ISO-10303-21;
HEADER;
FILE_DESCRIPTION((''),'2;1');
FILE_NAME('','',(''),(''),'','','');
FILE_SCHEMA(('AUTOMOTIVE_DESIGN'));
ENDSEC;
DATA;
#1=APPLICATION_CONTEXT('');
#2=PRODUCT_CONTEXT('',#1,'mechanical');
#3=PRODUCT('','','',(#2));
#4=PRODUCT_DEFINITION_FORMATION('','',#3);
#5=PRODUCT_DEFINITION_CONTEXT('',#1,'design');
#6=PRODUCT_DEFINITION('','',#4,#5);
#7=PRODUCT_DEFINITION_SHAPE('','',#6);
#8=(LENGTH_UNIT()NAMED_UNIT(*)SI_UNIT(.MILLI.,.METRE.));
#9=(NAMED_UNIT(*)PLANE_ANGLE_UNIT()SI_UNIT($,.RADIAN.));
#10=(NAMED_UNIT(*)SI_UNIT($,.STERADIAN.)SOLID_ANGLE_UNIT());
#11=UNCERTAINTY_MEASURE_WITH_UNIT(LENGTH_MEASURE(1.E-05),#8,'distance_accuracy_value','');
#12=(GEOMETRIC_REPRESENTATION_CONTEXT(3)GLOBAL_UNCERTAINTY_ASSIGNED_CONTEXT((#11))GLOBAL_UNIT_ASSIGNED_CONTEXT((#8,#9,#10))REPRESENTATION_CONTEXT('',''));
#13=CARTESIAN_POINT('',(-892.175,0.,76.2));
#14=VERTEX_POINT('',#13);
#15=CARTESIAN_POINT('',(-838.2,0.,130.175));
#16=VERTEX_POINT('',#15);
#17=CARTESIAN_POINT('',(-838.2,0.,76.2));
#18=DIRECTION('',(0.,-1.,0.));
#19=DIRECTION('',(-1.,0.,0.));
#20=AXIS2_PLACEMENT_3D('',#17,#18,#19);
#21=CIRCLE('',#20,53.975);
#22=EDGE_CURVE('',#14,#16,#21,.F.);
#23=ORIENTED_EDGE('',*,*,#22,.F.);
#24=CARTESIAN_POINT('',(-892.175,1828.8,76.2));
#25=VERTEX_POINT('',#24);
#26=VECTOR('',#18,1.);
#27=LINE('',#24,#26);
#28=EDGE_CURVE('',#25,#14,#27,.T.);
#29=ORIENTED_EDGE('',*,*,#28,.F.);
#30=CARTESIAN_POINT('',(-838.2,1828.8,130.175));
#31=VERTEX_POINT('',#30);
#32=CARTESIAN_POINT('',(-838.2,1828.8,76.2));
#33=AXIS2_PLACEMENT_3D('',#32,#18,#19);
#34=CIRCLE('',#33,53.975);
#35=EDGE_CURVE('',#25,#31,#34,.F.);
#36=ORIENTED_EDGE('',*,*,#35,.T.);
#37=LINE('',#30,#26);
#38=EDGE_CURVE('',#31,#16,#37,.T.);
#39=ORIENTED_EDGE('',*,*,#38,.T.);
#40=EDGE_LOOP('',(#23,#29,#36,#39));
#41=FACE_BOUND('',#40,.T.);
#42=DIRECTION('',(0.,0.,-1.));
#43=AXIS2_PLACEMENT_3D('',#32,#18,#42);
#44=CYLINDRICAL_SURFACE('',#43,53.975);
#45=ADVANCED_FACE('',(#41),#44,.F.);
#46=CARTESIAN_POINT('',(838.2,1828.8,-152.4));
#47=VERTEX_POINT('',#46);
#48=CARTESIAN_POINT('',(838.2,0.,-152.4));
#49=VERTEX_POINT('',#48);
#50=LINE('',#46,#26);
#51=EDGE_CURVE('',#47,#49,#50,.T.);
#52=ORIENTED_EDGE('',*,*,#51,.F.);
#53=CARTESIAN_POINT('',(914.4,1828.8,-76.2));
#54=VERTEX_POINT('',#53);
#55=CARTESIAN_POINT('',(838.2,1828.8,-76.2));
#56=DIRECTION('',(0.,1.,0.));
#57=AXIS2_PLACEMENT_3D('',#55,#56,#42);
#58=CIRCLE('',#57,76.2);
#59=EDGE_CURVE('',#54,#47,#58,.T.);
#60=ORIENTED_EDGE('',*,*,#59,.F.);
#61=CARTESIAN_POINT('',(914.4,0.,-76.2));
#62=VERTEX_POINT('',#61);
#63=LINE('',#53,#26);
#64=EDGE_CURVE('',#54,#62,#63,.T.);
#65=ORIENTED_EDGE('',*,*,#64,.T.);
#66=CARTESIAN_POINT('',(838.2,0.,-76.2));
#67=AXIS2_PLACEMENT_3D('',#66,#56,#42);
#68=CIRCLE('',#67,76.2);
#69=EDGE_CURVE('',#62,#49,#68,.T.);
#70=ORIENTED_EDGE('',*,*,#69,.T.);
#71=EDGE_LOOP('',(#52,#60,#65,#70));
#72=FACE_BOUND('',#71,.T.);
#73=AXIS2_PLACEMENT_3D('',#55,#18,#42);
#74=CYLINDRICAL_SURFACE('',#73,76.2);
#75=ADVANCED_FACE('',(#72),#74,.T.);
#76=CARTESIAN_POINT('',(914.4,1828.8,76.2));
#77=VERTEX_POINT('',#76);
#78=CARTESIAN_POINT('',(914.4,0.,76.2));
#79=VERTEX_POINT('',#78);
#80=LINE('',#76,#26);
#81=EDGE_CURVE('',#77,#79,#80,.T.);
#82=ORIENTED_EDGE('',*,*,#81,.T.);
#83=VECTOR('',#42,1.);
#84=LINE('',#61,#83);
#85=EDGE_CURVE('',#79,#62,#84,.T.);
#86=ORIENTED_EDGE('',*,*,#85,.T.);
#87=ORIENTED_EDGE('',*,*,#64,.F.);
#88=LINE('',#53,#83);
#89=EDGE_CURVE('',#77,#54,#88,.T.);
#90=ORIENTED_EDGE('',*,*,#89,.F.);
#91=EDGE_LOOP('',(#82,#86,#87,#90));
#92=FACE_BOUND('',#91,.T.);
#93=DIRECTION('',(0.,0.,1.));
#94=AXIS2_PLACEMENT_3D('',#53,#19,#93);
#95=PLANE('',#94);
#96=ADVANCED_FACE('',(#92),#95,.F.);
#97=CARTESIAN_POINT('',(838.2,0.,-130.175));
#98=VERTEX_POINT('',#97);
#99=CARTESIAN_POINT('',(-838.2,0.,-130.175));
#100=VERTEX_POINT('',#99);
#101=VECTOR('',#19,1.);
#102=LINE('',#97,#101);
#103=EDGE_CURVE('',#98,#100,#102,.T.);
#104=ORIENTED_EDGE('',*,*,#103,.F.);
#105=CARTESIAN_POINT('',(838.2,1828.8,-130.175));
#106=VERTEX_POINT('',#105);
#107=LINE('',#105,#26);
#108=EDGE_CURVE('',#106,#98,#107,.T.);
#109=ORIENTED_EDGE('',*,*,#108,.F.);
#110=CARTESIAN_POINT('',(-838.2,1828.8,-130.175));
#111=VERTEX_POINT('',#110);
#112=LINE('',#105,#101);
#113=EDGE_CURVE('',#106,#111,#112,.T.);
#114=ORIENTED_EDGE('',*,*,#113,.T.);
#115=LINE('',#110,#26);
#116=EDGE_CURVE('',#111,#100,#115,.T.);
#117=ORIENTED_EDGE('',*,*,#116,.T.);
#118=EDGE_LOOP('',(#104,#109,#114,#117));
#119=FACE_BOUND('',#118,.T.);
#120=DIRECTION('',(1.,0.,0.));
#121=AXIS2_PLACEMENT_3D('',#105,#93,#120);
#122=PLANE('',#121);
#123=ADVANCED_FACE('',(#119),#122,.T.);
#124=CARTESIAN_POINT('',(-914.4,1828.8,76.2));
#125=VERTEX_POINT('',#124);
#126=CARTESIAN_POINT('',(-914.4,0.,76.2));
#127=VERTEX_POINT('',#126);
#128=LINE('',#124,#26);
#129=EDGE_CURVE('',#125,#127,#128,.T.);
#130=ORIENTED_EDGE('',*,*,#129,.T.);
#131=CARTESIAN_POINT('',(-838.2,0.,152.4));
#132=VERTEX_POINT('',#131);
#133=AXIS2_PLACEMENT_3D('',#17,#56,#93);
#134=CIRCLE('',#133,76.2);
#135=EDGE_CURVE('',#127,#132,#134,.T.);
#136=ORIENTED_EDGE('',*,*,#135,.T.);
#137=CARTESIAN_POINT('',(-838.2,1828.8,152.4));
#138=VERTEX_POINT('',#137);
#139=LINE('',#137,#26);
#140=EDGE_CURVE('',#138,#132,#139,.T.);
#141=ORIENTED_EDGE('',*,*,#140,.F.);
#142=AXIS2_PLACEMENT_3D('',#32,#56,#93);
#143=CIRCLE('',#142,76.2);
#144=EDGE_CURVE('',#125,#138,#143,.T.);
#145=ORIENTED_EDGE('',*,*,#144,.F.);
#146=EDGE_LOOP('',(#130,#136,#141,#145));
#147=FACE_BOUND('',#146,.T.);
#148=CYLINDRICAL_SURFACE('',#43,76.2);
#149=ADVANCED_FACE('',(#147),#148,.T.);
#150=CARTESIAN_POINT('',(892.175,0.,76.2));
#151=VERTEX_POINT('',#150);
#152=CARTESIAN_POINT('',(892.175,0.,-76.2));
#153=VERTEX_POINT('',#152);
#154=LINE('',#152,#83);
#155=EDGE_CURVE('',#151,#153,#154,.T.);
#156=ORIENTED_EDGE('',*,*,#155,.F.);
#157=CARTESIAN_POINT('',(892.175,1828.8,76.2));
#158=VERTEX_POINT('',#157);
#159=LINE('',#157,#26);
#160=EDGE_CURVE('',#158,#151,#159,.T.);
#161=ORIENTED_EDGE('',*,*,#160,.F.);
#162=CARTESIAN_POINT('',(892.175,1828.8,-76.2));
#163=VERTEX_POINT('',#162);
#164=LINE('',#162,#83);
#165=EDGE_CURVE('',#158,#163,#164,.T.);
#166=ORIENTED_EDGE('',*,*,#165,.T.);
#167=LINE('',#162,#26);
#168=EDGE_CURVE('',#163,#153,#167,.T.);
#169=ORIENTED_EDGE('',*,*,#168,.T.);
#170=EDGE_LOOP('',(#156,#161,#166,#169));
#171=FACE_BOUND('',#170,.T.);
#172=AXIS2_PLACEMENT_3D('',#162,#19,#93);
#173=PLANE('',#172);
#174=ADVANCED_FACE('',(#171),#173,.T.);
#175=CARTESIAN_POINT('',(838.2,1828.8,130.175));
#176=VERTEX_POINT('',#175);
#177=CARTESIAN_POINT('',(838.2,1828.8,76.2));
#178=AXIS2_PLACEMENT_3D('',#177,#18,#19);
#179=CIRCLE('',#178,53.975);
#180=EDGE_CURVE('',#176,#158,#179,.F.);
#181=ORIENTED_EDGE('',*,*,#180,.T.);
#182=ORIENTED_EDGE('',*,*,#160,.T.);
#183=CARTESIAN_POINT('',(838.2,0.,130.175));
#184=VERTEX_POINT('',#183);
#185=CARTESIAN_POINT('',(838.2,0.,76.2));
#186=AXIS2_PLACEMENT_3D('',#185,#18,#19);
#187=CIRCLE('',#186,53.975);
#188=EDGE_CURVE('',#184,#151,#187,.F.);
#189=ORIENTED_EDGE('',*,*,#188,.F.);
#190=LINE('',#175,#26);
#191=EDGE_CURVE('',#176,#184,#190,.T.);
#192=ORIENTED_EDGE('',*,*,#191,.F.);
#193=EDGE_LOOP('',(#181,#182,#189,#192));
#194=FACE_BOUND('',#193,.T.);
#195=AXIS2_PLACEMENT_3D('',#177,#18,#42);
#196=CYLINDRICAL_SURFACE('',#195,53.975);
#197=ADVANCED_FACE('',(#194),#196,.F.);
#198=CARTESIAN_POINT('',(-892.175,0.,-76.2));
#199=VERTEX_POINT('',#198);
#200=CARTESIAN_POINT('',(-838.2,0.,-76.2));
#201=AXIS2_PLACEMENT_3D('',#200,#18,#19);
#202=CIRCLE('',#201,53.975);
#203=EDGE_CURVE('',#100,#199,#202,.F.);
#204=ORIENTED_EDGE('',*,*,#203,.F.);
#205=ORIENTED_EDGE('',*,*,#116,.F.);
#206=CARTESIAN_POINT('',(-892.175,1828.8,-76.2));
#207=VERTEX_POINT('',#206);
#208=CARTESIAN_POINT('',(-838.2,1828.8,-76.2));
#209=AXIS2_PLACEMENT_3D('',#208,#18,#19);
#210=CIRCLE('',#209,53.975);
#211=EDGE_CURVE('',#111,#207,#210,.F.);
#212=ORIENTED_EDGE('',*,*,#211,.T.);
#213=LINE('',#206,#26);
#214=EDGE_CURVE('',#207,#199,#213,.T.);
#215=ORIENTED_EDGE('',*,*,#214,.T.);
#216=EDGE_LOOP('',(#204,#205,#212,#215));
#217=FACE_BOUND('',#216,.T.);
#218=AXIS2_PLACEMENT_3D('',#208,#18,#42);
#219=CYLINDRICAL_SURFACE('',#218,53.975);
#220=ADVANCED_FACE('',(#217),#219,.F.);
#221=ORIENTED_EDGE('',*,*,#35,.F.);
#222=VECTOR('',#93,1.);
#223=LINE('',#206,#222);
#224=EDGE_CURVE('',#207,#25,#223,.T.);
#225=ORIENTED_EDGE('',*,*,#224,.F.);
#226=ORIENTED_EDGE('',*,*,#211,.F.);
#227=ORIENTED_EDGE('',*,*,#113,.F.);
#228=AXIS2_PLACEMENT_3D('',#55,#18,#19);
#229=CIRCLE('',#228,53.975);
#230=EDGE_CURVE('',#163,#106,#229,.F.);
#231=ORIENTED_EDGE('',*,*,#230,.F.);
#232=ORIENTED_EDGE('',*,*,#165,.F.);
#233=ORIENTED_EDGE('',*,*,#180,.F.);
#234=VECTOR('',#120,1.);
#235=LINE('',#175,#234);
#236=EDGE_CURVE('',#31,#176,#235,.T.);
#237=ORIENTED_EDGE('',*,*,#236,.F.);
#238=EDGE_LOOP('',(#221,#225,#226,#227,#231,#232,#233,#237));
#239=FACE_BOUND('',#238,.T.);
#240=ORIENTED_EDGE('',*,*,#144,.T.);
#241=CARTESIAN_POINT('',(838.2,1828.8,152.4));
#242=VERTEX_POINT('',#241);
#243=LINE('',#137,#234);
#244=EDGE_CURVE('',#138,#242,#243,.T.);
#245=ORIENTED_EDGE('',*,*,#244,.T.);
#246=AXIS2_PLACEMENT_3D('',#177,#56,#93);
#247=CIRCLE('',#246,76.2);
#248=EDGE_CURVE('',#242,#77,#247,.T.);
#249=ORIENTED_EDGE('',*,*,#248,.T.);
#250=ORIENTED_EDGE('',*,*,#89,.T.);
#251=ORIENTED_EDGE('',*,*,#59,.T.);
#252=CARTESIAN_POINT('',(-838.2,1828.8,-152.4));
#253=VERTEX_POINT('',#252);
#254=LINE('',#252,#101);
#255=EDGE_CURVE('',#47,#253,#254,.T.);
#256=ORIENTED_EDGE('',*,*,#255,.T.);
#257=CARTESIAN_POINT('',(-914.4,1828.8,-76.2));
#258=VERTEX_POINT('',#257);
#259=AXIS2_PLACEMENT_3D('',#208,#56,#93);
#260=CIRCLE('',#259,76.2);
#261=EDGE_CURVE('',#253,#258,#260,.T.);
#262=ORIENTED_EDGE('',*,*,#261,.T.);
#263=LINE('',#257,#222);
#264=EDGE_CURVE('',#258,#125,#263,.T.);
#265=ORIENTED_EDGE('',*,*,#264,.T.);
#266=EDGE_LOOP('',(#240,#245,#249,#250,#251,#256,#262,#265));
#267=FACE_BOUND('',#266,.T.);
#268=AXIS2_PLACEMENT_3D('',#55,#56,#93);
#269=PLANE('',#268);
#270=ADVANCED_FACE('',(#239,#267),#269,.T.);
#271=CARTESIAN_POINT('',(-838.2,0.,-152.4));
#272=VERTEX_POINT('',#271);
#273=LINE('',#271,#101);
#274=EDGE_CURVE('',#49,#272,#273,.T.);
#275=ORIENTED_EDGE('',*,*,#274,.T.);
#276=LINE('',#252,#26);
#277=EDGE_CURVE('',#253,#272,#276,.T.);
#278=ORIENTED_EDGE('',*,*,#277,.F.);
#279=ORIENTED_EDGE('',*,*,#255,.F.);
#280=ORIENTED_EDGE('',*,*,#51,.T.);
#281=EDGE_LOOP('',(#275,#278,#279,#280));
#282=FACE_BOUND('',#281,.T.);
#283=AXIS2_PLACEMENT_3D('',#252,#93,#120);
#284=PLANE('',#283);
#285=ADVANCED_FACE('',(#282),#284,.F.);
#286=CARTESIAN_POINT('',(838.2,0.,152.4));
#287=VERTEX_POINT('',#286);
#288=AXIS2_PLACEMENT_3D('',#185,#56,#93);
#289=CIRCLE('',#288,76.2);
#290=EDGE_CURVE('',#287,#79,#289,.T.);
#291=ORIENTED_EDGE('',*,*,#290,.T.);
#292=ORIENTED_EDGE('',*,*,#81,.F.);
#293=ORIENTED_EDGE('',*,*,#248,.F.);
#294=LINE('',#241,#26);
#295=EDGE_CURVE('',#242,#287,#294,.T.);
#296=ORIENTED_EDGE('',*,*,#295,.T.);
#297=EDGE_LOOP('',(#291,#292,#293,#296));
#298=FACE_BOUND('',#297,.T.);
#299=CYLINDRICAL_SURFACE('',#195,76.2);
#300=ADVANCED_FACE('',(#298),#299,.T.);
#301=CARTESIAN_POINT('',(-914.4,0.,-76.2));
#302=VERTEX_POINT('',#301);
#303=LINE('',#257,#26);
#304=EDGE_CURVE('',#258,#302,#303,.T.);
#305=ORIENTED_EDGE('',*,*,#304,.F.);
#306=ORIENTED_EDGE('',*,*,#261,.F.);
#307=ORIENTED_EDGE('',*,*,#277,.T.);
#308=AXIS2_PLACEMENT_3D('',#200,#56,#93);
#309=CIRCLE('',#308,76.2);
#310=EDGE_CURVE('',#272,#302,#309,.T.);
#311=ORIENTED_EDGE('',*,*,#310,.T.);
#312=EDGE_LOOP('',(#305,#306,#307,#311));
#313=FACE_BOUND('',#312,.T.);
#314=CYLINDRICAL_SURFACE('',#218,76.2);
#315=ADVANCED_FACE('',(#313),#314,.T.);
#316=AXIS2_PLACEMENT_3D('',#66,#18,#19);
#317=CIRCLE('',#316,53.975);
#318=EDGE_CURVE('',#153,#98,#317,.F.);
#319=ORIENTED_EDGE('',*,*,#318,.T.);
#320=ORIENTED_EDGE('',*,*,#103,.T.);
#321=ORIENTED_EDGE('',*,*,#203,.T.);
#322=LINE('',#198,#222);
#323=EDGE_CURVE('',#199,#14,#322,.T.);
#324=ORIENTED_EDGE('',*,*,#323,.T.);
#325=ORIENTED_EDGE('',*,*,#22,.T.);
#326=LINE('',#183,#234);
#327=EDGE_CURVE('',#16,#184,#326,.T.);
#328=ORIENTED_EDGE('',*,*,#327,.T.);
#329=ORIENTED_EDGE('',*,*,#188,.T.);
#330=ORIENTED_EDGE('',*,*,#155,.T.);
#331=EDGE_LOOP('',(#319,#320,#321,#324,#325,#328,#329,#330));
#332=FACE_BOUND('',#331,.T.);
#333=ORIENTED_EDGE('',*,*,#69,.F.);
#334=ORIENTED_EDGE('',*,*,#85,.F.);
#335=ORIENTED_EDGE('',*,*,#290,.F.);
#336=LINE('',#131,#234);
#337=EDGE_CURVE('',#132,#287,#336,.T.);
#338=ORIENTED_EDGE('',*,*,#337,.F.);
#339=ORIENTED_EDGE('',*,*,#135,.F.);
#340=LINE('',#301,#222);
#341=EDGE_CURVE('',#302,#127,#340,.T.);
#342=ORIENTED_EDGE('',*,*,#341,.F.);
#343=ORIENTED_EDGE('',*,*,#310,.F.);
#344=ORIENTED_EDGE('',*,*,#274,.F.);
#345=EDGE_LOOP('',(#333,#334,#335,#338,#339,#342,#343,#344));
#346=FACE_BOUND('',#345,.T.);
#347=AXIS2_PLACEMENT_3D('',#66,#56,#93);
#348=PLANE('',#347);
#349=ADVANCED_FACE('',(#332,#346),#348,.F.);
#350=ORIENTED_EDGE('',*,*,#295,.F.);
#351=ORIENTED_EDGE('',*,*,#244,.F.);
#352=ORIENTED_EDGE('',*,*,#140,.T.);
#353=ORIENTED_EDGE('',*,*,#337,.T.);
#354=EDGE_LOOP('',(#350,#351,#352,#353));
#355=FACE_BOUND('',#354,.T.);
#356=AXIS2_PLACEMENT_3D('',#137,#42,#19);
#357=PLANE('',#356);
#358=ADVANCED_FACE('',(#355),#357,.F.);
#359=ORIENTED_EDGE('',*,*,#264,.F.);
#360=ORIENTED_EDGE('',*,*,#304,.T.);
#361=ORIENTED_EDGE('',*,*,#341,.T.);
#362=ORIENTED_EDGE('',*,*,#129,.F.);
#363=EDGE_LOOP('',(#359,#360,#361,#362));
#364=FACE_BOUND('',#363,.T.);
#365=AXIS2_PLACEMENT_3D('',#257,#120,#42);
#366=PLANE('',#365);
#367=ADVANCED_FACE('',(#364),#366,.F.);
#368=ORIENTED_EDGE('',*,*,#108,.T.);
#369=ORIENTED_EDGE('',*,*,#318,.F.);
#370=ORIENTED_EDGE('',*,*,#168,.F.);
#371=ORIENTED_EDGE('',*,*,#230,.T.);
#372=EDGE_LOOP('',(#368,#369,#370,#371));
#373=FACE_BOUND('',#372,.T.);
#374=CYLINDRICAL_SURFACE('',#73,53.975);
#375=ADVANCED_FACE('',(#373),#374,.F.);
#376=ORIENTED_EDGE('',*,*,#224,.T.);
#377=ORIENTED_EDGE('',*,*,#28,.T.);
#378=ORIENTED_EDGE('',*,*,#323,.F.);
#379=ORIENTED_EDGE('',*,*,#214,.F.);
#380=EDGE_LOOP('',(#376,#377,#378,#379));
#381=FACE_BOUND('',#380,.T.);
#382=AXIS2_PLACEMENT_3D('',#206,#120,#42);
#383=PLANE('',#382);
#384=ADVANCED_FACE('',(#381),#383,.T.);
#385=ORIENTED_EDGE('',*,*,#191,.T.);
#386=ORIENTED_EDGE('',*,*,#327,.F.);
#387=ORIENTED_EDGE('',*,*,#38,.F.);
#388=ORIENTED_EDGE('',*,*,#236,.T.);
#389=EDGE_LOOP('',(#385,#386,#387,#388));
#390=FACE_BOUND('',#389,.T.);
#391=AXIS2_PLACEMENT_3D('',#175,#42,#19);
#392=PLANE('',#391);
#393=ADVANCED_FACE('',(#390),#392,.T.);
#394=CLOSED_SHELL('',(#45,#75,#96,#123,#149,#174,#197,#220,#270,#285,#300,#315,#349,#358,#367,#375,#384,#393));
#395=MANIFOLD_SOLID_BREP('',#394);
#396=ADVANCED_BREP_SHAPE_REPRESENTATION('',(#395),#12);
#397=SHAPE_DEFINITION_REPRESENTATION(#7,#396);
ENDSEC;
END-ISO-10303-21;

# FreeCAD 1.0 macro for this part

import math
import FreeCAD as App
import Part
import Sketcher

V = App.Vector
Q = App.Units.Quantity

doc = App.newDocument("Part")
params = doc.addObject("Spreadsheet::Sheet", "Params")
for row, (alias, value) in enumerate([
    ("sketch1_radius", "3 in"),
    ("sketch1_width", "66 in"),
    ("sketch1_height", "6 in"),
    ("sketch1_radius2", "2.125 in"),
    ("pad1_length", "72 in"),
], start=1):
    params.set(f"A{row}", alias)
    params.set(f"B{row}", "=" + value)
    params.setAlias(f"B{row}", alias)

body = doc.addObject("PartDesign::Body", "Body")

# Sketch on XZ plane
sketch1 = body.newObject("Sketcher::SketchObject", "Sketch")
sketch1.AttachmentSupport = (doc.getObject("XZ_Plane"), [""])
sketch1.MapMode = "FlatFace"
sketch1.addGeometry(Part.LineSegment(V(838, -152, 0), V(-838, -152, 0)), False)
sketch1.addGeometry(Part.ArcOfCircle(Part.Circle(V(-838, -76, 0), V(0, 0, 1), 76), math.radians(-180), math.radians(-90)), False)
sketch1.addGeometry(Part.LineSegment(V(-914, -76, 0), V(-914, 76, 0)), False)
sketch1.addGeometry(Part.ArcOfCircle(Part.Circle(V(-838, 76, 0), V(0, 0, 1), 76), math.radians(90), math.radians(180)), False)
sketch1.addGeometry(Part.LineSegment(V(-838, 152, 0), V(838, 152, 0)), False)
sketch1.addGeometry(Part.ArcOfCircle(Part.Circle(V(838, 76, 0), V(0, 0, 1), 76), math.radians(0), math.radians(90)), False)
sketch1.addGeometry(Part.LineSegment(V(914, 76, 0), V(914, -76, 0)), False)
sketch1.addGeometry(Part.ArcOfCircle(Part.Circle(V(838, -76, 0), V(0, 0, 1), 76), math.radians(-90), math.radians(0)), False)
sketch1.addGeometry(Part.LineSegment(V(-838, -130, 0), V(838, -130, 0)), False)
sketch1.addGeometry(Part.ArcOfCircle(Part.Circle(V(838, -76, 0), V(0, 0, 1), 54), math.radians(-90), math.radians(0)), False)
sketch1.addGeometry(Part.LineSegment(V(892, -76, 0), V(892, 76, 0)), False)
sketch1.addGeometry(Part.ArcOfCircle(Part.Circle(V(838, 76, 0), V(0, 0, 1), 54), math.radians(0), math.radians(90)), False)
sketch1.addGeometry(Part.LineSegment(V(838, 130, 0), V(-838, 130, 0)), False)
sketch1.addGeometry(Part.ArcOfCircle(Part.Circle(V(-838, 76, 0), V(0, 0, 1), 54), math.radians(90), math.radians(180)), False)
sketch1.addGeometry(Part.LineSegment(V(-892, 76, 0), V(-892, -76, 0)), False)
sketch1.addGeometry(Part.ArcOfCircle(Part.Circle(V(-838, -76, 0), V(0, 0, 1), 54), math.radians(180), math.radians(270)), False)
sketch1.addConstraint(Sketcher.Constraint("Tangent", 0, 2, 1, 2))
sketch1.addConstraint(Sketcher.Constraint("Tangent", 1, 1, 2, 1))
sketch1.addConstraint(Sketcher.Constraint("Tangent", 2, 2, 3, 2))
sketch1.addConstraint(Sketcher.Constraint("Tangent", 3, 1, 4, 1))
sketch1.addConstraint(Sketcher.Constraint("Tangent", 4, 2, 5, 2))
sketch1.addConstraint(Sketcher.Constraint("Tangent", 5, 1, 6, 1))
sketch1.addConstraint(Sketcher.Constraint("Tangent", 6, 2, 7, 2))
sketch1.addConstraint(Sketcher.Constraint("Tangent", 7, 1, 0, 1))
sketch1.addConstraint(Sketcher.Constraint("Tangent", 8, 2, 9, 1))
sketch1.addConstraint(Sketcher.Constraint("Tangent", 9, 2, 10, 1))
sketch1.addConstraint(Sketcher.Constraint("Tangent", 10, 2, 11, 1))
sketch1.addConstraint(Sketcher.Constraint("Tangent", 11, 2, 12, 1))
sketch1.addConstraint(Sketcher.Constraint("Tangent", 12, 2, 13, 1))
sketch1.addConstraint(Sketcher.Constraint("Tangent", 13, 2, 14, 1))
sketch1.addConstraint(Sketcher.Constraint("Tangent", 14, 2, 15, 1))
sketch1.addConstraint(Sketcher.Constraint("Tangent", 15, 2, 8, 1))
sketch1.addConstraint(Sketcher.Constraint("Horizontal", 0))
sketch1.addConstraint(Sketcher.Constraint("Vertical", 2))
sketch1.addConstraint(Sketcher.Constraint("Horizontal", 4))
sketch1.addConstraint(Sketcher.Constraint("Vertical", 6))
sketch1.addConstraint(Sketcher.Constraint("Horizontal", 8))
sketch1.addConstraint(Sketcher.Constraint("Vertical", 10))
sketch1.addConstraint(Sketcher.Constraint("Horizontal", 12))
sketch1.addConstraint(Sketcher.Constraint("Vertical", 14))
sketch1.addConstraint(Sketcher.Constraint("Coincident", 9, 3, 7, 3))
sketch1.addConstraint(Sketcher.Constraint("Coincident", 11, 3, 5, 3))
sketch1.addConstraint(Sketcher.Constraint("Coincident", 13, 3, 3, 3))
sketch1.addConstraint(Sketcher.Constraint("Equal", 1, 3))
sketch1.addConstraint(Sketcher.Constraint("Equal", 3, 5))
sketch1.addConstraint(Sketcher.Constraint("Equal", 5, 7))
sketch1.addConstraint(Sketcher.Constraint("Equal", 13, 15))
sketch1.addConstraint(Sketcher.Constraint("Symmetric", 1, 3, 5, 3, -1, 1))
sketch1.addConstraint(Sketcher.Constraint("Radius", 1, Q("3 in")))
sketch1.addConstraint(Sketcher.Constraint("DistanceX", 0, 2, 0, 1, Q("66 in")))
sketch1.addConstraint(Sketcher.Constraint("DistanceY", 2, 1, 2, 2, Q("6 in")))
sketch1.addConstraint(Sketcher.Constraint("Radius", 9, Q("2.125 in")))
sketch1.setExpression("Constraints[32]", "Params.sketch1_radius")
sketch1.setExpression("Constraints[33]", "Params.sketch1_width")
sketch1.setExpression("Constraints[34]", "Params.sketch1_height")
sketch1.setExpression("Constraints[35]", "Params.sketch1_radius2")
pad1 = body.newObject("PartDesign::Pad", "Pad")
pad1.Profile = sketch1
pad1.setExpression("Length", "Params.pad1_length")
pad1.Reversed = True

doc.recompute()
